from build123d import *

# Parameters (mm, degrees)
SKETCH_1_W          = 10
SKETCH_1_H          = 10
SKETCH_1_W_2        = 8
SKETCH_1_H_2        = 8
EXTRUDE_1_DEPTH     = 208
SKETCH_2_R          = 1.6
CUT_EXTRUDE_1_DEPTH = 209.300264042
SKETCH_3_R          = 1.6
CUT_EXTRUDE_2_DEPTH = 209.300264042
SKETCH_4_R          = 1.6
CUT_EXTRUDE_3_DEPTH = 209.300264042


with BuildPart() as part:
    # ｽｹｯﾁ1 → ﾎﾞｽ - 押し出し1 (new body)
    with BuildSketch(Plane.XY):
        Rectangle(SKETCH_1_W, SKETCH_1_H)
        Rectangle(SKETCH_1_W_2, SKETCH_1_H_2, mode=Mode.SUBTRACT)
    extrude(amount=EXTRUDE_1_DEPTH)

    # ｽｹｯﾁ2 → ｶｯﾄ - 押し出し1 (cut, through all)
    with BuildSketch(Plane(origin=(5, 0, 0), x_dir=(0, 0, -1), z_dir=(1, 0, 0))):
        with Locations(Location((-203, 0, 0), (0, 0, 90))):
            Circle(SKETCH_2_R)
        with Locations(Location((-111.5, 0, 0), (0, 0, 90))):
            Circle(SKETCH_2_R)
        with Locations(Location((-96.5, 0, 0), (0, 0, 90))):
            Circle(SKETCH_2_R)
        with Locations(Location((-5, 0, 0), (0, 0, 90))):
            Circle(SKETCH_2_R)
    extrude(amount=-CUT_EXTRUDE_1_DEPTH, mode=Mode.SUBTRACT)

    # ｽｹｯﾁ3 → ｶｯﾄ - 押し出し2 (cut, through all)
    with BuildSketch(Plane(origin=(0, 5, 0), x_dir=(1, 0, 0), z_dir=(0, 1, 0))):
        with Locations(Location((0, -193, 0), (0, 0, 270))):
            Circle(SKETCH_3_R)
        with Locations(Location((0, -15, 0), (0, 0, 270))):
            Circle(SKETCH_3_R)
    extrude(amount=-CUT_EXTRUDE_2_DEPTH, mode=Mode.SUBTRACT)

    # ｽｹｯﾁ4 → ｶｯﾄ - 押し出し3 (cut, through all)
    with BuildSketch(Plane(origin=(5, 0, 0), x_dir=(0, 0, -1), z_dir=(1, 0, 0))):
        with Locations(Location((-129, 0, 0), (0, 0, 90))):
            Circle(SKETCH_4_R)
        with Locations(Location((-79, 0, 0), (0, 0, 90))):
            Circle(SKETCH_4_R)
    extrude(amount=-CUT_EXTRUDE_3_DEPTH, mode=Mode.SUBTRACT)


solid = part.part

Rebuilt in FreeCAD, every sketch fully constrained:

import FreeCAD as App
import Part
import Sketcher
from FreeCAD import Vector
Q = App.Units.Quantity

doc = App.newDocument("Part")
body = doc.addObject("PartDesign::Body", "Body")

# Sketch on XY plane
sketch1 = doc.addObject("Sketcher::SketchObject", "Sketch")
body.addObject(sketch1)
sketch1.AttachmentSupport = (doc.XY_Plane, [""])
sketch1.MapMode = "FlatFace"
sketch1.addGeometry([
    Part.LineSegment(Vector(-5, 5, 0), Vector(-5, -5, 0)),  # 0
    Part.LineSegment(Vector(-5, -5, 0), Vector(5, -5, 0)),  # 1
    Part.LineSegment(Vector(5, -5, 0), Vector(5, 5, 0)),  # 2
    Part.LineSegment(Vector(5, 5, 0), Vector(-5, 5, 0)),  # 3
    Part.LineSegment(Vector(4, -4, 0), Vector(-4, -4, 0)),  # 4
    Part.LineSegment(Vector(-4, -4, 0), Vector(-4, 4, 0)),  # 5
    Part.LineSegment(Vector(-4, 4, 0), Vector(4, 4, 0)),  # 6
    Part.LineSegment(Vector(4, 4, 0), Vector(4, -4, 0)),  # 7
], False)
sketch1.addConstraint([
    Sketcher.Constraint("Coincident", 0, 2, 1, 1),
    Sketcher.Constraint("Coincident", 1, 2, 2, 1),
    Sketcher.Constraint("Coincident", 2, 2, 3, 1),
    Sketcher.Constraint("Coincident", 3, 2, 0, 1),
    Sketcher.Constraint("Coincident", 4, 2, 5, 1),
    Sketcher.Constraint("Coincident", 5, 2, 6, 1),
    Sketcher.Constraint("Coincident", 6, 2, 7, 1),
    Sketcher.Constraint("Coincident", 7, 2, 4, 1),
    Sketcher.Constraint("Vertical", 0),
    Sketcher.Constraint("Horizontal", 1),
    Sketcher.Constraint("Vertical", 2),
    Sketcher.Constraint("Horizontal", 3),
    Sketcher.Constraint("Horizontal", 4),
    Sketcher.Constraint("Vertical", 5),
    Sketcher.Constraint("Horizontal", 6),
    Sketcher.Constraint("Vertical", 7),
    Sketcher.Constraint("Symmetric", 0, 2, 2, 2, -1, 1),
    Sketcher.Constraint("Symmetric", 4, 2, 6, 2, -1, 1),
    Sketcher.Constraint("Equal", 3, 0),
    Sketcher.Constraint("Equal", 6, 5),
    Sketcher.Constraint("DistanceX", 1, 1, 1, 2, Q("10 mm")),
    Sketcher.Constraint("DistanceX", 4, 2, 4, 1, Q("8 mm")),
])
pad1 = doc.addObject("PartDesign::Pad", "Pad")
body.addObject(pad1)
pad1.Profile = sketch1
pad1.Length = 208

# Sketch on YZ plane
sketch2 = doc.addObject("Sketcher::SketchObject", "Sketch001")
body.addObject(sketch2)
sketch2.AttachmentSupport = (doc.YZ_Plane, [""])
sketch2.MapMode = "FlatFace"
sketch2.AttachmentOffset = App.Placement(Vector(0, 0, 5), App.Rotation())
sketch2.addGeometry([
    Part.Circle(Vector(0, 203, 0), Vector(0, 0, 1), 1.6),
    Part.Circle(Vector(0, 111.5, 0), Vector(0, 0, 1), 1.6),
    Part.Circle(Vector(0, 96.5, 0), Vector(0, 0, 1), 1.6),
    Part.Circle(Vector(0, 5, 0), Vector(0, 0, 1), 1.6),
], False)
sketch2.addConstraint([
    Sketcher.Constraint("Equal", 0, 1),
    Sketcher.Constraint("Equal", 1, 2),
    Sketcher.Constraint("Equal", 2, 3),
    Sketcher.Constraint("PointOnObject", 0, 3, -2),
    Sketcher.Constraint("PointOnObject", 1, 3, -2),
    Sketcher.Constraint("PointOnObject", 2, 3, -2),
    Sketcher.Constraint("PointOnObject", 3, 3, -2),
    Sketcher.Constraint("Diameter", 0, Q("3.2 mm")),
    Sketcher.Constraint("DistanceY", -1, 1, 0, 3, Q("203 mm")),
    Sketcher.Constraint("DistanceY", -1, 1, 3, 3, Q("5 mm")),
    Sketcher.Constraint("DistanceY", 2, 3, 1, 3, Q("15 mm")),
    Sketcher.Constraint("DistanceY", -1, 1, 1, 3, Q("111.5 mm")),
])
pocket1 = doc.addObject("PartDesign::Pocket", "Pocket")
body.addObject(pocket1)
pocket1.Profile = sketch2
pocket1.Type = "ThroughAll"

# Sketch on XZ plane
sketch3 = doc.addObject("Sketcher::SketchObject", "Sketch002")
body.addObject(sketch3)
sketch3.AttachmentSupport = (doc.XZ_Plane, [""])
sketch3.MapMode = "FlatFace"
sketch3.AttachmentOffset = App.Placement(Vector(0, 0, -5), App.Rotation())
sketch3.addGeometry([
    Part.Circle(Vector(0, 193, 0), Vector(0, 0, 1), 1.6),
    Part.Circle(Vector(0, 15, 0), Vector(0, 0, 1), 1.6),
], False)
sketch3.addConstraint([
    Sketcher.Constraint("Equal", 0, 1),
    Sketcher.Constraint("PointOnObject", 0, 3, -2),
    Sketcher.Constraint("PointOnObject", 1, 3, -2),
    Sketcher.Constraint("Diameter", 0, Q("3.2 mm")),
    Sketcher.Constraint("DistanceY", -1, 1, 0, 3, Q("193 mm")),
    Sketcher.Constraint("DistanceY", -1, 1, 1, 3, Q("15 mm")),
])
pocket2 = doc.addObject("PartDesign::Pocket", "Pocket001")
body.addObject(pocket2)
pocket2.Profile = sketch3
pocket2.Type = "ThroughAll"
pocket2.Reversed = True

# Sketch on YZ plane
sketch4 = doc.addObject("Sketcher::SketchObject", "Sketch003")
body.addObject(sketch4)
sketch4.AttachmentSupport = (doc.YZ_Plane, [""])
sketch4.MapMode = "FlatFace"
sketch4.AttachmentOffset = App.Placement(Vector(0, 0, 5), App.Rotation())
sketch4.addGeometry([
    Part.Circle(Vector(0, 129, 0), Vector(0, 0, 1), 1.6),
    Part.Circle(Vector(0, 79, 0), Vector(0, 0, 1), 1.6),
], False)
sketch4.addConstraint([
    Sketcher.Constraint("Equal", 0, 1),
    Sketcher.Constraint("PointOnObject", 0, 3, -2),
    Sketcher.Constraint("PointOnObject", 1, 3, -2),
    Sketcher.Constraint("Diameter", 0, Q("3.2 mm")),
    Sketcher.Constraint("DistanceY", -1, 1, 0, 3, Q("129 mm")),
    Sketcher.Constraint("DistanceY", -1, 1, 1, 3, Q("79 mm")),
])
pocket3 = doc.addObject("PartDesign::Pocket", "Pocket002")
body.addObject(pocket3)
pocket3.Profile = sketch4
pocket3.Type = "ThroughAll"

doc.recompute()
